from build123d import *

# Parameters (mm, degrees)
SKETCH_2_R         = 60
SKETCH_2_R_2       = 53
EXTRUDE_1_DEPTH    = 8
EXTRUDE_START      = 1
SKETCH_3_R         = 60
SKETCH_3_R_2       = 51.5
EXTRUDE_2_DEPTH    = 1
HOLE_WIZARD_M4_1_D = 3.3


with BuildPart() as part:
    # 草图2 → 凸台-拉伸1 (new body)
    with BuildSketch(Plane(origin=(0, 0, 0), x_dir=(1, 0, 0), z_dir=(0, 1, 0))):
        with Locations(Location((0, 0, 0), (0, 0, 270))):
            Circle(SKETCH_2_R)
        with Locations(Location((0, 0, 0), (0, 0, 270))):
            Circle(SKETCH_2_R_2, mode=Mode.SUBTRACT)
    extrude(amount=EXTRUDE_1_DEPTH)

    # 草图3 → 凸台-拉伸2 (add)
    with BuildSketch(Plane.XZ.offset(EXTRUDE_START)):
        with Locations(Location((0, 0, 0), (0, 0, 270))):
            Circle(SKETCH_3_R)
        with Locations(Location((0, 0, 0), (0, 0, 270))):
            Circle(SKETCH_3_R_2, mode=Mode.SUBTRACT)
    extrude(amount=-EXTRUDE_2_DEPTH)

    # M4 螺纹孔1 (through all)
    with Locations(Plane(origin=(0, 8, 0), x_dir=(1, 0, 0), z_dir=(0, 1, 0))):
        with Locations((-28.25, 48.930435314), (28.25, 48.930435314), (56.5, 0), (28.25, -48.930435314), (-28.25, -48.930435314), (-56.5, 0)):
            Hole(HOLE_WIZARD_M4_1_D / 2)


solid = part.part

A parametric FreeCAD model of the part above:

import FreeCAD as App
import Part
import Sketcher

doc = App.newDocument("Part")
body = doc.addObject("PartDesign::Body", "Body")

# Sketch on XZ plane
sketch1 = doc.addObject("Sketcher::SketchObject", "Sketch")
body.addObject(sketch1)
sketch1.AttachmentSupport = (doc.XZ_Plane, [""])
sketch1.MapMode = "FlatFace"
sketch1.addGeometry([
    Part.Circle(App.Vector(0, 0, 0), App.Vector(0, 0, 1), 60),
    Part.Circle(App.Vector(0, 0, 0), App.Vector(0, 0, 1), 53),
], False)
sketch1.addConstraint([
    Sketcher.Constraint("Coincident", 0, 3, -1, 1),
    Sketcher.Constraint("Coincident", 1, 3, -1, 1),
    Sketcher.Constraint("Diameter", 0, 120.0),
    Sketcher.Constraint("Diameter", 1, 106.0),
])
pad1 = doc.addObject("PartDesign::Pad", "Pad")
body.addObject(pad1)
pad1.Profile = sketch1
pad1.Length = 8
pad1.Reversed = True

# Sketch on XZ plane
sketch2 = doc.addObject("Sketcher::SketchObject", "Sketch001")
body.addObject(sketch2)
sketch2.AttachmentSupport = (doc.XZ_Plane, [""])
sketch2.MapMode = "FlatFace"
sketch2.AttachmentOffset = App.Placement(App.Vector(0, 0, 1), App.Rotation())
sketch2.addGeometry([
    Part.Circle(App.Vector(0, 0, 0), App.Vector(0, 0, 1), 60),
    Part.Circle(App.Vector(0, 0, 0), App.Vector(0, 0, 1), 52),
], False)
sketch2.addConstraint([
    Sketcher.Constraint("Coincident", 0, 3, -1, 1),
    Sketcher.Constraint("Coincident", 1, 3, -1, 1),
    Sketcher.Constraint("Diameter", 0, 120.0),
    Sketcher.Constraint("Diameter", 1, 103.0),
])
pad2 = doc.addObject("PartDesign::Pad", "Pad001")
body.addObject(pad2)
pad2.Profile = sketch2
pad2.Length = 1
pad2.Reversed = True

# Sketch on XZ plane
sketch3 = doc.addObject("Sketcher::SketchObject", "Sketch002")
body.addObject(sketch3)
sketch3.AttachmentSupport = (doc.XZ_Plane, [""])
sketch3.MapMode = "FlatFace"
sketch3.AttachmentOffset = App.Placement(App.Vector(0, 0, -8), App.Rotation())
sketch3.addGeometry([
    Part.Circle(App.Vector(-28.2, -48.9, 0), App.Vector(0, 0, 1), 1.6),  # 0
    Part.Circle(App.Vector(28.2, -48.9, 0), App.Vector(0, 0, 1), 1.6),  # 1
    Part.Circle(App.Vector(56.5, 0, 0), App.Vector(0, 0, 1), 1.6),  # 2
    Part.Circle(App.Vector(28.2, 48.9, 0), App.Vector(0, 0, 1), 1.6),  # 3
    Part.Circle(App.Vector(-28.2, 48.9, 0), App.Vector(0, 0, 1), 1.6),  # 4
    Part.Circle(App.Vector(-56.5, 0, 0), App.Vector(0, 0, 1), 1.6),  # 5
], False)
sketch3.addConstraint([
    Sketcher.Constraint("Equal", 0, 1),
    Sketcher.Constraint("Equal", 1, 2),
    Sketcher.Constraint("Equal", 2, 3),
    Sketcher.Constraint("Equal", 3, 4),
    Sketcher.Constraint("Equal", 4, 5),
    Sketcher.Constraint("Symmetric", 0, 3, 3, 3, -1, 1),
    Sketcher.Constraint("Symmetric", 1, 3, 4, 3, -1, 1),
    Sketcher.Constraint("Symmetric", 2, 3, 5, 3, -1, 1),
    Sketcher.Constraint("Symmetric", 0, 3, 1, 3, -2),
    Sketcher.Constraint("PointOnObject", 2, 3, -1),
    Sketcher.Constraint("Diameter", 0, 3.3),
    Sketcher.Constraint("DistanceX", 5, 3, 2, 3, 113.0),
    Sketcher.Constraint("DistanceX", 0, 3, 1, 3, 56.5),
    Sketcher.Constraint("DistanceY", 1, 3, 3, 3, 97.860871),
])
doc.recompute()
hole = doc.addObject("PartDesign::Hole", "Hole")
body.addObject(hole)
hole.Profile = sketch3
hole.ThreadType = "None"
hole.Diameter = 3.3
hole.DepthType = "ThroughAll"
hole.Reversed = True

doc.recompute()
